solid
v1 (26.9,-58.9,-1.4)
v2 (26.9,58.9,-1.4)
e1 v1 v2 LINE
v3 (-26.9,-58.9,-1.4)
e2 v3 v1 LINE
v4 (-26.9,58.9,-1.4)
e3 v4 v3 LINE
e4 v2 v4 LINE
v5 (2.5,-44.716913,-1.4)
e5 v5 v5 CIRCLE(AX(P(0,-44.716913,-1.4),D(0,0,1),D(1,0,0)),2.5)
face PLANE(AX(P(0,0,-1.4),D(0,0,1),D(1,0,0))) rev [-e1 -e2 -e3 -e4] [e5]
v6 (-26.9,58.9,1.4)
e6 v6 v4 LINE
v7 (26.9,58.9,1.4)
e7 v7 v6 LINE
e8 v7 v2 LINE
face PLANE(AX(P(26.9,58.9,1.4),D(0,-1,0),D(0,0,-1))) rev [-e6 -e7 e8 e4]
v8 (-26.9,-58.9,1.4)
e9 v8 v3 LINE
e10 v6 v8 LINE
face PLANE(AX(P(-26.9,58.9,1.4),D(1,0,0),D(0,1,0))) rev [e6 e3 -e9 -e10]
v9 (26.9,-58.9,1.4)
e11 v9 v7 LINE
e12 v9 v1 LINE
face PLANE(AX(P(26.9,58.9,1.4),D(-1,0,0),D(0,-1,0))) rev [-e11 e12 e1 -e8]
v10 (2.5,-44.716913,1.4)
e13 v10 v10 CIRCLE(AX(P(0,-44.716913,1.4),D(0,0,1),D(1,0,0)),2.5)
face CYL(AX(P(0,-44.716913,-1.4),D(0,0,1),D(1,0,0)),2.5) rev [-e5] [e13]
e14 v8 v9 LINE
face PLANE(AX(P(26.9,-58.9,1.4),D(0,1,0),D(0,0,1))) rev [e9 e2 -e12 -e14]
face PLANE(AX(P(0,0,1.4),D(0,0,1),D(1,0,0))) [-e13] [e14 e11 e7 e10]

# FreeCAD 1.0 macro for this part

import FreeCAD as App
import Part
import Sketcher

V = App.Vector

doc = App.newDocument("Part")
body = doc.addObject("PartDesign::Body", "Body")

# Sketch on XY plane
sketch1 = doc.addObject("Sketcher::SketchObject", "Sketch")
body.addObject(sketch1)
sketch1.AttachmentSupport = (doc.XY_Plane, [""])
sketch1.MapMode = "FlatFace"
sketch1.addGeometry(Part.LineSegment(V(-27, -59, 0), V(27, -59, 0)), False)
sketch1.addGeometry(Part.LineSegment(V(27, -59, 0), V(27, 59, 0)), False)
sketch1.addGeometry(Part.LineSegment(V(27, 59, 0), V(-27, 59, 0)), False)
sketch1.addGeometry(Part.LineSegment(V(-27, 59, 0), V(-27, -59, 0)), False)
sketch1.addConstraint(Sketcher.Constraint("Coincident", 0, 2, 1, 1))
sketch1.addConstraint(Sketcher.Constraint("Coincident", 1, 2, 2, 1))
sketch1.addConstraint(Sketcher.Constraint("Coincident", 2, 2, 3, 1))
sketch1.addConstraint(Sketcher.Constraint("Coincident", 3, 2, 0, 1))
sketch1.addConstraint(Sketcher.Constraint("Horizontal", 0))
sketch1.addConstraint(Sketcher.Constraint("Vertical", 1))
sketch1.addConstraint(Sketcher.Constraint("Horizontal", 2))
sketch1.addConstraint(Sketcher.Constraint("Vertical", 3))
sketch1.addConstraint(Sketcher.Constraint("Symmetric", 0, 2, 2, 2, -1, 1))
sketch1.addConstraint(Sketcher.Constraint("DistanceX", 0, 1, 0, 2, 53.8))
sketch1.addConstraint(Sketcher.Constraint("DistanceY", 1, 1, 1, 2, 117.8))
pad1 = doc.addObject("PartDesign::Pad", "Pad")
body.addObject(pad1)
pad1.Profile = sketch1
pad1.Length = 2.8
pad1.Midplane = True

# Sketch on XY plane
sketch2 = doc.addObject("Sketcher::SketchObject", "Sketch001")
body.addObject(sketch2)
sketch2.AttachmentSupport = (doc.XY_Plane, [""])
sketch2.MapMode = "FlatFace"
sketch2.AttachmentOffset = App.Placement(V(0, 0, 1.4), App.Rotation())
sketch2.addGeometry(Part.Circle(V(0, -44.7, 0), V(0, 0, 1), 2.5), False)
sketch2.addConstraint(Sketcher.Constraint("PointOnObject", 0, 3, -2))
sketch2.addConstraint(Sketcher.Constraint("Diameter", 0, 5.0))
sketch2.addConstraint(Sketcher.Constraint("DistanceY", 0, 3, -1, 1, 44.716913))
pocket1 = doc.addObject("PartDesign::Pocket", "Pocket")
body.addObject(pocket1)
pocket1.Profile = sketch2
pocket1.Length = 2.8

doc.recompute()
